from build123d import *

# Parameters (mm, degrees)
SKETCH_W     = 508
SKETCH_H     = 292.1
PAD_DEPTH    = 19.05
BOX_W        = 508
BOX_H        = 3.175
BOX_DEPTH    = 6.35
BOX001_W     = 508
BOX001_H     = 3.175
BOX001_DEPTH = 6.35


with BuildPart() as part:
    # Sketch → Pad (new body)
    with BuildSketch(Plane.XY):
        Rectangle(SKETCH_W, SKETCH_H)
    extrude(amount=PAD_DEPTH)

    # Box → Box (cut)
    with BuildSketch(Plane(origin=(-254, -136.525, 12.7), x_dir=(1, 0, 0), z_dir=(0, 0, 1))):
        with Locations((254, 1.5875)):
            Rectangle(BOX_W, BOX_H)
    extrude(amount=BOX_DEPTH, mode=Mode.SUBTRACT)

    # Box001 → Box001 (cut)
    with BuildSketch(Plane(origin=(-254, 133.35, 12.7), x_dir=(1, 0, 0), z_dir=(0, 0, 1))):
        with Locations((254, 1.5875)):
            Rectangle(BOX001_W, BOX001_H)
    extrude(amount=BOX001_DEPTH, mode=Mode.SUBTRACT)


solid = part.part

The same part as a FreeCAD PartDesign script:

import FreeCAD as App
import Part
import Sketcher
from FreeCAD import Vector
Q = App.Units.Quantity


def add_polygon(sketch, points):
    """Adds a closed chain of lines whose ends are joined by coincident constraints."""
    first, n = sketch.GeometryCount, len(points)
    for a, b in zip(points, points[1:] + points[:1]):
        sketch.addGeometry(Part.LineSegment(App.Vector(*a, 0), App.Vector(*b, 0)), False)
    for i in range(n):
        sketch.addConstraint(Sketcher.Constraint("Coincident", first + i, 2, first + (i + 1) % n, 1))

doc = App.newDocument("Part")
body = doc.addObject("PartDesign::Body", "Body")

# Sketch on XY plane
sketch1 = doc.addObject("Sketcher::SketchObject", "Sketch")
body.addObject(sketch1)
sketch1.AttachmentSupport = (doc.XY_Plane, [""])
sketch1.MapMode = "FlatFace"
add_polygon(sketch1, [(-254, 146), (-254, -146), (254, -146), (254, 146)])  # lines 0-3
sketch1.addConstraint(Sketcher.Constraint("Vertical", 0))
sketch1.addConstraint(Sketcher.Constraint("Horizontal", 1))
sketch1.addConstraint(Sketcher.Constraint("Vertical", 2))
sketch1.addConstraint(Sketcher.Constraint("Horizontal", 3))
sketch1.addConstraint(Sketcher.Constraint("Symmetric", 0, 2, 2, 2, -1, 1))
sketch1.addConstraint(Sketcher.Constraint("DistanceX", 1, 1, 1, 2, Q("20 in")))
sketch1.addConstraint(Sketcher.Constraint("DistanceY", 0, 2, 0, 1, Q("11.5 in")))
pad1 = doc.addObject("PartDesign::Pad", "Pad")
body.addObject(pad1)
pad1.Profile = sketch1
pad1.Length = Q("0.75 in")

# Sketch on XY plane
sketch2 = doc.addObject("Sketcher::SketchObject", "Sketch001")
body.addObject(sketch2)
sketch2.AttachmentSupport = (doc.XY_Plane, [""])
sketch2.MapMode = "FlatFace"
sketch2.AttachmentOffset = App.Placement(Vector(0, 0, 0.5 * 25.4), App.Rotation())
add_polygon(sketch2, [(-254, -133.3), (-254, -136.5), (254, -136.5), (254, -133.3)])  # lines 0-3
sketch2.addConstraint(Sketcher.Constraint("Vertical", 0))
sketch2.addConstraint(Sketcher.Constraint("Horizontal", 1))
sketch2.addConstraint(Sketcher.Constraint("Vertical", 2))
sketch2.addConstraint(Sketcher.Constraint("Horizontal", 3))
sketch2.addConstraint(Sketcher.Constraint("DistanceX", 1, 1, 1, 2, Q("20 in")))
sketch2.addConstraint(Sketcher.Constraint("DistanceX", 0, 2, -1, 1, Q("10 in")))
sketch2.addConstraint(Sketcher.Constraint("DistanceY", 0, 2, 0, 1, Q("0.125 in")))
sketch2.addConstraint(Sketcher.Constraint("DistanceY", 2, 2, -1, 1, Q("5.25 in")))
pocket1 = doc.addObject("PartDesign::Pocket", "Pocket")
body.addObject(pocket1)
pocket1.Profile = sketch2
pocket1.Length = Q("0.25 in")
pocket1.Reversed = True

# Sketch on XY plane
sketch3 = doc.addObject("Sketcher::SketchObject", "Sketch002")
body.addObject(sketch3)
sketch3.AttachmentSupport = (doc.XY_Plane, [""])
sketch3.MapMode = "FlatFace"
sketch3.AttachmentOffset = App.Placement(Vector(0, 0, 0.5 * 25.4), App.Rotation())
add_polygon(sketch3, [(-254, 136.5), (-254, 133.3), (254, 133.3), (254, 136.5)])  # lines 0-3
sketch3.addConstraint(Sketcher.Constraint("Vertical", 0))
sketch3.addConstraint(Sketcher.Constraint("Horizontal", 1))
sketch3.addConstraint(Sketcher.Constraint("Vertical", 2))
sketch3.addConstraint(Sketcher.Constraint("Horizontal", 3))
sketch3.addConstraint(Sketcher.Constraint("DistanceX", 1, 1, 1, 2, Q("20 in")))
sketch3.addConstraint(Sketcher.Constraint("DistanceX", 0, 2, -1, 1, Q("10 in")))
sketch3.addConstraint(Sketcher.Constraint("DistanceY", 0, 2, 0, 1, Q("0.125 in")))
sketch3.addConstraint(Sketcher.Constraint("DistanceY", -1, 1, 0, 2, Q("5.25 in")))
pocket2 = doc.addObject("PartDesign::Pocket", "Pocket001")
body.addObject(pocket2)
pocket2.Profile = sketch3
pocket2.Length = Q("0.25 in")
pocket2.Reversed = True

doc.recompute()
